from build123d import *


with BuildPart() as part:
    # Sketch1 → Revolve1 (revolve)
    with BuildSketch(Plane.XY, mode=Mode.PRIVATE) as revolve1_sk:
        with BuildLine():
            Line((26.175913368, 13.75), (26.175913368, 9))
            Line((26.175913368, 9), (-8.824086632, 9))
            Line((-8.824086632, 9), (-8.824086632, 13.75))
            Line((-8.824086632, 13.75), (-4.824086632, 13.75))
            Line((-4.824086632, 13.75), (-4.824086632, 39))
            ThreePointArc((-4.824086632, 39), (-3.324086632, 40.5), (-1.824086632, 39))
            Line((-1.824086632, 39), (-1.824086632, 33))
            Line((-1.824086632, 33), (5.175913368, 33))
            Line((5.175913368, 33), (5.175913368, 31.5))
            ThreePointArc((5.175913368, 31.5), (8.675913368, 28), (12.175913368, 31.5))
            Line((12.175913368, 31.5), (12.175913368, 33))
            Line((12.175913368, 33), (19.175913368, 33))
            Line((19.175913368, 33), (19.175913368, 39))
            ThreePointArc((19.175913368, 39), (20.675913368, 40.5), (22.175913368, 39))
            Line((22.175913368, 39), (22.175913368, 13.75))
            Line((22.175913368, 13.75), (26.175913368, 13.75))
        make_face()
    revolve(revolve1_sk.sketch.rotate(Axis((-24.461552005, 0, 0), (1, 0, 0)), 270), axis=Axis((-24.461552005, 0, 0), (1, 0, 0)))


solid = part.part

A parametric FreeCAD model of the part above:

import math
import FreeCAD as App
import Part
import Sketcher

V = App.Vector

doc = App.newDocument("Part")
body = doc.addObject("PartDesign::Body", "Body")

sketch1 = body.newObject("Sketcher::SketchObject", "Sketch")
sketch1.AttachmentSupport = (doc.getObject("XY_Plane"), [""])
sketch1.MapMode = "FlatFace"
sketch1.addGeometry(Part.LineSegment(V(26.175913, 9, 0), V(26.175913, 13.75, 0)), False)
sketch1.addGeometry(Part.LineSegment(V(26.175913, 13.75, 0), V(22.175913, 13.75, 0)), False)
sketch1.addGeometry(Part.LineSegment(V(22.175913, 13.75, 0), V(22.175913, 39, 0)), False)
sketch1.addGeometry(Part.ArcOfCircle(Part.Circle(V(20.675913, 39, 0), V(0, 0, 1), 1.5), math.radians(0), math.radians(180)), False)
sketch1.addGeometry(Part.LineSegment(V(19.175913, 39, 0), V(19.175913, 33, 0)), False)
sketch1.addGeometry(Part.LineSegment(V(19.175913, 33, 0), V(12.175913, 33, 0)), False)
sketch1.addGeometry(Part.LineSegment(V(12.175913, 33, 0), V(12.175913, 31.5, 0)), False)
sketch1.addGeometry(Part.ArcOfCircle(Part.Circle(V(8.675913, 31.5, 0), V(0, 0, 1), 3.5), math.radians(180), math.radians(360)), False)
sketch1.addGeometry(Part.LineSegment(V(5.175913, 31.5, 0), V(5.175913, 33, 0)), False)
sketch1.addGeometry(Part.LineSegment(V(5.175913, 33, 0), V(-1.824087, 33, 0)), False)
sketch1.addGeometry(Part.LineSegment(V(-1.824087, 33, 0), V(-1.824087, 39, 0)), False)
sketch1.addGeometry(Part.ArcOfCircle(Part.Circle(V(-3.324087, 39, 0), V(0, 0, 1), 1.5), math.radians(0), math.radians(180)), False)
sketch1.addGeometry(Part.LineSegment(V(-4.824087, 39, 0), V(-4.824087, 13.75, 0)), False)
sketch1.addGeometry(Part.LineSegment(V(-4.824087, 13.75, 0), V(-8.824087, 13.75, 0)), False)
sketch1.addGeometry(Part.LineSegment(V(-8.824087, 13.75, 0), V(-8.824087, 9, 0)), False)
sketch1.addGeometry(Part.LineSegment(V(-8.824087, 9, 0), V(26.175913, 9, 0)), False)
sketch1.addConstraint(Sketcher.Constraint("Coincident", 0, 2, 1, 1))
sketch1.addConstraint(Sketcher.Constraint("Coincident", 1, 2, 2, 1))
sketch1.addConstraint(Sketcher.Constraint("Tangent", 2, 2, 3, 1))
sketch1.addConstraint(Sketcher.Constraint("Tangent", 3, 2, 4, 1))
sketch1.addConstraint(Sketcher.Constraint("Coincident", 4, 2, 5, 1))
sketch1.addConstraint(Sketcher.Constraint("Coincident", 5, 2, 6, 1))
sketch1.addConstraint(Sketcher.Constraint("Tangent", 6, 2, 7, 2))
sketch1.addConstraint(Sketcher.Constraint("Tangent", 7, 1, 8, 1))
sketch1.addConstraint(Sketcher.Constraint("Coincident", 8, 2, 9, 1))
sketch1.addConstraint(Sketcher.Constraint("Coincident", 9, 2, 10, 1))
sketch1.addConstraint(Sketcher.Constraint("Tangent", 10, 2, 11, 1))
sketch1.addConstraint(Sketcher.Constraint("Tangent", 11, 2, 12, 1))
sketch1.addConstraint(Sketcher.Constraint("Coincident", 12, 2, 13, 1))
sketch1.addConstraint(Sketcher.Constraint("Coincident", 13, 2, 14, 1))
sketch1.addConstraint(Sketcher.Constraint("Coincident", 14, 2, 15, 1))
sketch1.addConstraint(Sketcher.Constraint("Coincident", 15, 2, 0, 1))
sketch1.addConstraint(Sketcher.Constraint("Vertical", 0))
sketch1.addConstraint(Sketcher.Constraint("Horizontal", 1))
sketch1.addConstraint(Sketcher.Constraint("Vertical", 2))
sketch1.addConstraint(Sketcher.Constraint("Vertical", 4))
sketch1.addConstraint(Sketcher.Constraint("Horizontal", 5))
sketch1.addConstraint(Sketcher.Constraint("Vertical", 6))
sketch1.addConstraint(Sketcher.Constraint("Vertical", 8))
sketch1.addConstraint(Sketcher.Constraint("Horizontal", 9))
sketch1.addConstraint(Sketcher.Constraint("Vertical", 10))
sketch1.addConstraint(Sketcher.Constraint("Vertical", 12))
sketch1.addConstraint(Sketcher.Constraint("Horizontal", 13))
sketch1.addConstraint(Sketcher.Constraint("Vertical", 14))
sketch1.addConstraint(Sketcher.Constraint("Horizontal", 15))
sketch1.addConstraint(Sketcher.Constraint("Equal", 3, 11))
sketch1.addConstraint(Sketcher.Constraint("Horizontal", 3, 3, 11, 3))
sketch1.addConstraint(Sketcher.Constraint("Horizontal", 5, 2, 8, 2))
sketch1.addConstraint(Sketcher.Constraint("Horizontal", 1, 2, 12, 2))
sketch1.addConstraint(Sketcher.Constraint("Equal", 5, 9))
sketch1.addConstraint(Sketcher.Constraint("Equal", 1, 13))
sketch1.addConstraint(Sketcher.Constraint("Radius", 3, 1.5))
sketch1.addConstraint(Sketcher.Constraint("Radius", 7, 3.5))
sketch1.addConstraint(Sketcher.Constraint("DistanceX", 1, 2, 1, 1, 4.0))
sketch1.addConstraint(Sketcher.Constraint("DistanceX", 5, 2, 5, 1, 7.0))
sketch1.addConstraint(Sketcher.Constraint("DistanceY", 4, 2, 4, 1, 6.0))
sketch1.addConstraint(Sketcher.Constraint("DistanceY", 6, 2, 6, 1, 1.5))
sketch1.addConstraint(Sketcher.Constraint("DistanceY", -1, 1, 3, 3, 39.0))
sketch1.addConstraint(Sketcher.Constraint("DistanceY", -1, 1, 14, 2, 9.0))
sketch1.addConstraint(Sketcher.Constraint("DistanceY", 0, 1, 0, 2, 4.75))
sketch1.addConstraint(Sketcher.Constraint("DistanceX", -1, 1, 3, 3, 20.675913))
revolution = body.newObject("PartDesign::Revolution", "Revolution")
revolution.Profile = sketch1
revolution.ReferenceAxis = (sketch1, ["H_Axis"])
revolution.Angle = 360

doc.recompute()
